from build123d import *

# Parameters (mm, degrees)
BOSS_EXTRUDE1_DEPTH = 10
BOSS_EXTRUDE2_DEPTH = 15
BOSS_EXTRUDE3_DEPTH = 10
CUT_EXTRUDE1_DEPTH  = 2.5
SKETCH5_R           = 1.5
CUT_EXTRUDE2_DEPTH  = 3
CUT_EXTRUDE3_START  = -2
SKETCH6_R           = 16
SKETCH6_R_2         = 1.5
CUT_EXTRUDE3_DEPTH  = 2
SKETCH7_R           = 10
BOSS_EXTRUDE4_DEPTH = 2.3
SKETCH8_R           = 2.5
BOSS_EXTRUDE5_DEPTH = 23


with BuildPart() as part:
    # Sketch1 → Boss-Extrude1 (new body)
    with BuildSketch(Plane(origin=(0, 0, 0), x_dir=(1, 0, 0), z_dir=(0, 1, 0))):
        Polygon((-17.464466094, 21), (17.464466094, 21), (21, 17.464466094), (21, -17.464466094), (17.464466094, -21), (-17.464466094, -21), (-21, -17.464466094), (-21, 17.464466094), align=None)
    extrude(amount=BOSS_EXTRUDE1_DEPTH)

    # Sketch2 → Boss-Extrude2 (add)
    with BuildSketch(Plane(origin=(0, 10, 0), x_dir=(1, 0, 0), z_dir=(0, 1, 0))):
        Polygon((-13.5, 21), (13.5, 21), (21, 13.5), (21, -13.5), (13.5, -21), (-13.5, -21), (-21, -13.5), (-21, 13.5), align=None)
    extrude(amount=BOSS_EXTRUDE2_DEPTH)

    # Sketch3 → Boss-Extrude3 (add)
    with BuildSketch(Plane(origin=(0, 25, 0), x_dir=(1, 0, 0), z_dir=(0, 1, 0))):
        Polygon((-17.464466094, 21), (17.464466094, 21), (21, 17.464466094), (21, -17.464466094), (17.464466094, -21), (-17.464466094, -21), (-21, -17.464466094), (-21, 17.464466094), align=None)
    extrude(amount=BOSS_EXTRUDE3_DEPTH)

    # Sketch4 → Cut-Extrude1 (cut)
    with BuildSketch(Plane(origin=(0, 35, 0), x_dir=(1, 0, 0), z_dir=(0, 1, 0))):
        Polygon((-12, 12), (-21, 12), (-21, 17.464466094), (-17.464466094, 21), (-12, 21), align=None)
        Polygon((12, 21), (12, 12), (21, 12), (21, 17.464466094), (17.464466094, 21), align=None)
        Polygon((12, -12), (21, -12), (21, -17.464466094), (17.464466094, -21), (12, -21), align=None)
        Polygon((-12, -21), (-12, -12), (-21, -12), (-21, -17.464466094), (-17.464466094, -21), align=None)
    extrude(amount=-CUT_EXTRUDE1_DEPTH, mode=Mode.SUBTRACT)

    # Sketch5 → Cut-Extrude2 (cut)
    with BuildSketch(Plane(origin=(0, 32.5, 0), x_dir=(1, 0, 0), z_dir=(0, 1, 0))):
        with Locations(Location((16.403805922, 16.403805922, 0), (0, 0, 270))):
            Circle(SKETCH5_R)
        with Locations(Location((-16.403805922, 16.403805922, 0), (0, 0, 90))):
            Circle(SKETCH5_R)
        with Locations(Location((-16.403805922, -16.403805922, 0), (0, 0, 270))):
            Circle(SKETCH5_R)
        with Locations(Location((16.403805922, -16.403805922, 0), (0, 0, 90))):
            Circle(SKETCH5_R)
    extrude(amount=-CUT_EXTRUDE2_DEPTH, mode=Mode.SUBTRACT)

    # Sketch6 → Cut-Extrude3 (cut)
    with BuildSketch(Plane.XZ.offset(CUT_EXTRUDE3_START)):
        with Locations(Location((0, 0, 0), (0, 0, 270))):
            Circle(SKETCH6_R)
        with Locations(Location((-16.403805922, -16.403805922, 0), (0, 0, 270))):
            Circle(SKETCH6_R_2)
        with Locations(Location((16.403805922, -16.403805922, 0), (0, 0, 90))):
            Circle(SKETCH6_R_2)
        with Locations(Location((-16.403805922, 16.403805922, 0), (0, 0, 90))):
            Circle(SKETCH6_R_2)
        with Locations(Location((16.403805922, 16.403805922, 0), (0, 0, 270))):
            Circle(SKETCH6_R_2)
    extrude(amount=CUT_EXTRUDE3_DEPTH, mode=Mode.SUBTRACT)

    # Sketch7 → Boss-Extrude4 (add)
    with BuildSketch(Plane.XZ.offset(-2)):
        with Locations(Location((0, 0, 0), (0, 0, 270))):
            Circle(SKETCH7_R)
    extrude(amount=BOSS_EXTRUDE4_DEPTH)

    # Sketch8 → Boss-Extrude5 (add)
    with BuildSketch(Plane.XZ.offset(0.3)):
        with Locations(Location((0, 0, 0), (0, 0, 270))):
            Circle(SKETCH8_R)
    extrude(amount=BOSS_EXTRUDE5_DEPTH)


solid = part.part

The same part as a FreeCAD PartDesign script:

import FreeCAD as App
import Part
import Sketcher
from FreeCAD import Vector

doc = App.newDocument("Part")
params = doc.addObject("Spreadsheet::Sheet", "Params")
for row, (alias, value) in enumerate([
    ("sketch1_length", "5 mm"),
    ("pad1_length", "10 mm"),
    ("sketch2_width", "27 mm"),
    ("pad2_length", "15 mm"),
    ("sketch3_length", "5 mm"),
    ("pad3_length", "10 mm"),
    ("sketch4_width", "9 mm"),
    ("sketch4_length", "5 mm"),
    ("pocket1_length", "2.5 mm"),
    ("sketch5_diameter", "3 mm"),
    ("pocket2_length", "3 mm"),
    ("sketch6_diameter", "32 mm"),
    ("sketch6_diameter2", "3 mm"),
    ("pocket3_length", "2 mm"),
    ("sketch7_diameter", "20 mm"),
    ("pad4_length", "2.3 mm"),
    ("sketch8_diameter", "5 mm"),
    ("pad5_length", "23 mm"),
], start=1):
    params.set(f"A{row}", alias)
    params.set(f"B{row}", "=" + value)
    params.setAlias(f"B{row}", alias)

body = doc.addObject("PartDesign::Body", "Body")

# Sketch on XZ plane
sketch1 = body.newObject("Sketcher::SketchObject", "Sketch")
sketch1.AttachmentSupport = (doc.getObject("XZ_Plane"), [""])
sketch1.MapMode = "FlatFace"
sketch1.addGeometry(Part.LineSegment(Vector(17, -21, 0), Vector(-17, -21, 0)), False)
sketch1.addGeometry(Part.LineSegment(Vector(-17, -21, 0), Vector(-21, -17, 0)), False)
sketch1.addGeometry(Part.LineSegment(Vector(-21, -17, 0), Vector(-21, 17, 0)), False)
sketch1.addGeometry(Part.LineSegment(Vector(-21, 17, 0), Vector(-17, 21, 0)), False)
sketch1.addGeometry(Part.LineSegment(Vector(-17, 21, 0), Vector(17, 21, 0)), False)
sketch1.addGeometry(Part.LineSegment(Vector(17, 21, 0), Vector(21, 17, 0)), False)
sketch1.addGeometry(Part.LineSegment(Vector(21, 17, 0), Vector(21, -17, 0)), False)
sketch1.addGeometry(Part.LineSegment(Vector(21, -17, 0), Vector(17, -21, 0)), False)
sketch1.addConstraint(Sketcher.Constraint("Coincident", 0, 2, 1, 1))
sketch1.addConstraint(Sketcher.Constraint("Coincident", 1, 2, 2, 1))
sketch1.addConstraint(Sketcher.Constraint("Coincident", 2, 2, 3, 1))
sketch1.addConstraint(Sketcher.Constraint("Coincident", 3, 2, 4, 1))
sketch1.addConstraint(Sketcher.Constraint("Coincident", 4, 2, 5, 1))
sketch1.addConstraint(Sketcher.Constraint("Coincident", 5, 2, 6, 1))
sketch1.addConstraint(Sketcher.Constraint("Coincident", 6, 2, 7, 1))
sketch1.addConstraint(Sketcher.Constraint("Coincident", 7, 2, 0, 1))
sketch1.addConstraint(Sketcher.Constraint("Horizontal", 0))
sketch1.addConstraint(Sketcher.Constraint("Vertical", 2))
sketch1.addConstraint(Sketcher.Constraint("Horizontal", 4))
sketch1.addConstraint(Sketcher.Constraint("Vertical", 6))
sketch1.addConstraint(Sketcher.Constraint("Symmetric", 0, 2, 4, 2, -1, 1))
sketch1.addConstraint(Sketcher.Constraint("Symmetric", 1, 2, 5, 2, -1, 1))
sketch1.addConstraint(Sketcher.Constraint("Perpendicular", 1, 3))
sketch1.addConstraint(Sketcher.Constraint("Perpendicular", 5, 7))
sketch1.addConstraint(Sketcher.Constraint("Horizontal", 2, 2, 5, 2))
sketch1.addConstraint(Sketcher.Constraint("Horizontal", 1, 2, 6, 2))
sketch1.addConstraint(Sketcher.Constraint("Vertical", 0, 2, 3, 2))
sketch1.addConstraint(Sketcher.Constraint("Equal", 4, 2))
sketch1.addConstraint(Sketcher.Constraint("Distance", 1, 5.0))
sketch1.addConstraint(Sketcher.Constraint("DistanceY", 0, 2, -1, 1, 21.0))
sketch1.setExpression("Constraints[20]", "Params.sketch1_length")
pad1 = body.newObject("PartDesign::Pad", "Pad")
pad1.Profile = sketch1
pad1.setExpression("Length", "Params.pad1_length")
pad1.Reversed = True

# Sketch on XZ plane
sketch2 = body.newObject("Sketcher::SketchObject", "Sketch001")
sketch2.AttachmentSupport = (doc.getObject("XZ_Plane"), [""])
sketch2.MapMode = "FlatFace"
sketch2.AttachmentOffset = App.Placement(Vector(0, 0, -10), App.Rotation())
sketch2.addGeometry(Part.LineSegment(Vector(14, -21, 0), Vector(-14, -21, 0)), False)
sketch2.addGeometry(Part.LineSegment(Vector(-14, -21, 0), Vector(-21, -14, 0)), False)
sketch2.addGeometry(Part.LineSegment(Vector(-21, -14, 0), Vector(-21, 14, 0)), False)
sketch2.addGeometry(Part.LineSegment(Vector(-21, 14, 0), Vector(-14, 21, 0)), False)
sketch2.addGeometry(Part.LineSegment(Vector(-14, 21, 0), Vector(14, 21, 0)), False)
sketch2.addGeometry(Part.LineSegment(Vector(14, 21, 0), Vector(21, 14, 0)), False)
sketch2.addGeometry(Part.LineSegment(Vector(21, 14, 0), Vector(21, -14, 0)), False)
sketch2.addGeometry(Part.LineSegment(Vector(21, -14, 0), Vector(14, -21, 0)), False)
sketch2.addConstraint(Sketcher.Constraint("Coincident", 0, 2, 1, 1))
sketch2.addConstraint(Sketcher.Constraint("Coincident", 1, 2, 2, 1))
sketch2.addConstraint(Sketcher.Constraint("Coincident", 2, 2, 3, 1))
sketch2.addConstraint(Sketcher.Constraint("Coincident", 3, 2, 4, 1))
sketch2.addConstraint(Sketcher.Constraint("Coincident", 4, 2, 5, 1))
sketch2.addConstraint(Sketcher.Constraint("Coincident", 5, 2, 6, 1))
sketch2.addConstraint(Sketcher.Constraint("Coincident", 6, 2, 7, 1))
sketch2.addConstraint(Sketcher.Constraint("Coincident", 7, 2, 0, 1))
sketch2.addConstraint(Sketcher.Constraint("Horizontal", 0))
sketch2.addConstraint(Sketcher.Constraint("Vertical", 2))
sketch2.addConstraint(Sketcher.Constraint("Horizontal", 4))
sketch2.addConstraint(Sketcher.Constraint("Vertical", 6))
sketch2.addConstraint(Sketcher.Constraint("Symmetric", 0, 2, 4, 2, -1, 1))
sketch2.addConstraint(Sketcher.Constraint("Symmetric", 1, 2, 5, 2, -1, 1))
sketch2.addConstraint(Sketcher.Constraint("Perpendicular", 1, 3))
sketch2.addConstraint(Sketcher.Constraint("Perpendicular", 5, 7))
sketch2.addConstraint(Sketcher.Constraint("Horizontal", 2, 2, 5, 2))
sketch2.addConstraint(Sketcher.Constraint("Horizontal", 1, 2, 6, 2))
sketch2.addConstraint(Sketcher.Constraint("Vertical", 0, 2, 3, 2))
sketch2.addConstraint(Sketcher.Constraint("Equal", 4, 2))
sketch2.addConstraint(Sketcher.Constraint("DistanceX", 0, 2, 0, 1, 27.0))
sketch2.addConstraint(Sketcher.Constraint("DistanceY", 0, 2, -1, 1, 21.0))
sketch2.setExpression("Constraints[20]", "Params.sketch2_width")
pad2 = body.newObject("PartDesign::Pad", "Pad001")
pad2.Profile = sketch2
pad2.setExpression("Length", "Params.pad2_length")
pad2.Reversed = True

# Sketch on XZ plane
sketch3 = body.newObject("Sketcher::SketchObject", "Sketch002")
sketch3.AttachmentSupport = (doc.getObject("XZ_Plane"), [""])
sketch3.MapMode = "FlatFace"
sketch3.AttachmentOffset = App.Placement(Vector(0, 0, -25), App.Rotation())
sketch3.addGeometry(Part.LineSegment(Vector(17, -21, 0), Vector(-17, -21, 0)), False)
sketch3.addGeometry(Part.LineSegment(Vector(-17, -21, 0), Vector(-21, -17, 0)), False)
sketch3.addGeometry(Part.LineSegment(Vector(-21, -17, 0), Vector(-21, 17, 0)), False)
sketch3.addGeometry(Part.LineSegment(Vector(-21, 17, 0), Vector(-17, 21, 0)), False)
sketch3.addGeometry(Part.LineSegment(Vector(-17, 21, 0), Vector(17, 21, 0)), False)
sketch3.addGeometry(Part.LineSegment(Vector(17, 21, 0), Vector(21, 17, 0)), False)
sketch3.addGeometry(Part.LineSegment(Vector(21, 17, 0), Vector(21, -17, 0)), False)
sketch3.addGeometry(Part.LineSegment(Vector(21, -17, 0), Vector(17, -21, 0)), False)
sketch3.addConstraint(Sketcher.Constraint("Coincident", 0, 2, 1, 1))
sketch3.addConstraint(Sketcher.Constraint("Coincident", 1, 2, 2, 1))
sketch3.addConstraint(Sketcher.Constraint("Coincident", 2, 2, 3, 1))
sketch3.addConstraint(Sketcher.Constraint("Coincident", 3, 2, 4, 1))
sketch3.addConstraint(Sketcher.Constraint("Coincident", 4, 2, 5, 1))
sketch3.addConstraint(Sketcher.Constraint("Coincident", 5, 2, 6, 1))
sketch3.addConstraint(Sketcher.Constraint("Coincident", 6, 2, 7, 1))
sketch3.addConstraint(Sketcher.Constraint("Coincident", 7, 2, 0, 1))
sketch3.addConstraint(Sketcher.Constraint("Horizontal", 0))
sketch3.addConstraint(Sketcher.Constraint("Vertical", 2))
sketch3.addConstraint(Sketcher.Constraint("Horizontal", 4))
sketch3.addConstraint(Sketcher.Constraint("Vertical", 6))
sketch3.addConstraint(Sketcher.Constraint("Symmetric", 0, 2, 4, 2, -1, 1))
sketch3.addConstraint(Sketcher.Constraint("Symmetric", 1, 2, 5, 2, -1, 1))
sketch3.addConstraint(Sketcher.Constraint("Perpendicular", 1, 3))
sketch3.addConstraint(Sketcher.Constraint("Perpendicular", 5, 7))
sketch3.addConstraint(Sketcher.Constraint("Horizontal", 2, 2, 5, 2))
sketch3.addConstraint(Sketcher.Constraint("Horizontal", 1, 2, 6, 2))
sketch3.addConstraint(Sketcher.Constraint("Vertical", 0, 2, 3, 2))
sketch3.addConstraint(Sketcher.Constraint("Equal", 4, 2))
sketch3.addConstraint(Sketcher.Constraint("Distance", 1, 5.0))
sketch3.addConstraint(Sketcher.Constraint("DistanceY", 0, 2, -1, 1, 21.0))
sketch3.setExpression("Constraints[20]", "Params.sketch3_length")
pad3 = body.newObject("PartDesign::Pad", "Pad002")
pad3.Profile = sketch3
pad3.setExpression("Length", "Params.pad3_length")
pad3.Reversed = True

# Sketch on XZ plane
sketch4 = body.newObject("Sketcher::SketchObject", "Sketch003")
sketch4.AttachmentSupport = (doc.getObject("XZ_Plane"), [""])
sketch4.MapMode = "FlatFace"
sketch4.AttachmentOffset = App.Placement(Vector(0, 0, -35), App.Rotation())
sketch4.addGeometry(Part.LineSegment(Vector(-21, -12, 0), Vector(-12, -12, 0)), False)
sketch4.addGeometry(Part.LineSegment(Vector(-12, -12, 0), Vector(-12, -21, 0)), False)
sketch4.addGeometry(Part.LineSegment(Vector(-12, -21, 0), Vector(-17, -21, 0)), False)
sketch4.addGeometry(Part.LineSegment(Vector(-17, -21, 0), Vector(-21, -17, 0)), False)
sketch4.addGeometry(Part.LineSegment(Vector(-21, -17, 0), Vector(-21, -12, 0)), False)
sketch4.addGeometry(Part.LineSegment(Vector(12, -21, 0), Vector(12, -12, 0)), False)
sketch4.addGeometry(Part.LineSegment(Vector(12, -12, 0), Vector(21, -12, 0)), False)
sketch4.addGeometry(Part.LineSegment(Vector(21, -12, 0), Vector(21, -17, 0)), False)
sketch4.addGeometry(Part.LineSegment(Vector(21, -17, 0), Vector(17, -21, 0)), False)
sketch4.addGeometry(Part.LineSegment(Vector(17, -21, 0), Vector(12, -21, 0)), False)
sketch4.addGeometry(Part.LineSegment(Vector(21, 12, 0), Vector(12, 12, 0)), False)
sketch4.addGeometry(Part.LineSegment(Vector(12, 12, 0), Vector(12, 21, 0)), False)
sketch4.addGeometry(Part.LineSegment(Vector(12, 21, 0), Vector(17, 21, 0)), False)
sketch4.addGeometry(Part.LineSegment(Vector(17, 21, 0), Vector(21, 17, 0)), False)
sketch4.addGeometry(Part.LineSegment(Vector(21, 17, 0), Vector(21, 12, 0)), False)
sketch4.addGeometry(Part.LineSegment(Vector(-12, 21, 0), Vector(-12, 12, 0)), False)
sketch4.addGeometry(Part.LineSegment(Vector(-12, 12, 0), Vector(-21, 12, 0)), False)
sketch4.addGeometry(Part.LineSegment(Vector(-21, 12, 0), Vector(-21, 17, 0)), False)
sketch4.addGeometry(Part.LineSegment(Vector(-21, 17, 0), Vector(-17, 21, 0)), False)
sketch4.addGeometry(Part.LineSegment(Vector(-17, 21, 0), Vector(-12, 21, 0)), False)
sketch4.addConstraint(Sketcher.Constraint("Coincident", 0, 2, 1, 1))
sketch4.addConstraint(Sketcher.Constraint("Coincident", 1, 2, 2, 1))
sketch4.addConstraint(Sketcher.Constraint("Coincident", 2, 2, 3, 1))
sketch4.addConstraint(Sketcher.Constraint("Coincident", 3, 2, 4, 1))
sketch4.addConstraint(Sketcher.Constraint("Coincident", 4, 2, 0, 1))
sketch4.addConstraint(Sketcher.Constraint("Coincident", 5, 2, 6, 1))
sketch4.addConstraint(Sketcher.Constraint("Coincident", 6, 2, 7, 1))
sketch4.addConstraint(Sketcher.Constraint("Coincident", 7, 2, 8, 1))
sketch4.addConstraint(Sketcher.Constraint("Coincident", 8, 2, 9, 1))
sketch4.addConstraint(Sketcher.Constraint("Coincident", 9, 2, 5, 1))
sketch4.addConstraint(Sketcher.Constraint("Coincident", 10, 2, 11, 1))
sketch4.addConstraint(Sketcher.Constraint("Coincident", 11, 2, 12, 1))
sketch4.addConstraint(Sketcher.Constraint("Coincident", 12, 2, 13, 1))
sketch4.addConstraint(Sketcher.Constraint("Coincident", 13, 2, 14, 1))
sketch4.addConstraint(Sketcher.Constraint("Coincident", 14, 2, 10, 1))
sketch4.addConstraint(Sketcher.Constraint("Coincident", 15, 2, 16, 1))
sketch4.addConstraint(Sketcher.Constraint("Coincident", 16, 2, 17, 1))
sketch4.addConstraint(Sketcher.Constraint("Coincident", 17, 2, 18, 1))
sketch4.addConstraint(Sketcher.Constraint("Coincident", 18, 2, 19, 1))
sketch4.addConstraint(Sketcher.Constraint("Coincident", 19, 2, 15, 1))
sketch4.addConstraint(Sketcher.Constraint("Horizontal", 0))
sketch4.addConstraint(Sketcher.Constraint("Vertical", 1))
sketch4.addConstraint(Sketcher.Constraint("Horizontal", 2))
sketch4.addConstraint(Sketcher.Constraint("Vertical", 4))
sketch4.addConstraint(Sketcher.Constraint("Vertical", 5))
sketch4.addConstraint(Sketcher.Constraint("Horizontal", 6))
sketch4.addConstraint(Sketcher.Constraint("Vertical", 7))
sketch4.addConstraint(Sketcher.Constraint("Horizontal", 9))
sketch4.addConstraint(Sketcher.Constraint("Horizontal", 10))
sketch4.addConstraint(Sketcher.Constraint("Vertical", 11))
sketch4.addConstraint(Sketcher.Constraint("Horizontal", 12))
sketch4.addConstraint(Sketcher.Constraint("Vertical", 14))
sketch4.addConstraint(Sketcher.Constraint("Vertical", 15))
sketch4.addConstraint(Sketcher.Constraint("Horizontal", 16))
sketch4.addConstraint(Sketcher.Constraint("Vertical", 17))
sketch4.addConstraint(Sketcher.Constraint("Horizontal", 19))
sketch4.addConstraint(Sketcher.Constraint("Symmetric", 0, 2, 10, 2, -1, 1))
sketch4.addConstraint(Sketcher.Constraint("Symmetric", 2, 2, 12, 2, -1, 1))
sketch4.addConstraint(Sketcher.Constraint("Symmetric", 3, 2, 13, 2, -1, 1))
sketch4.addConstraint(Sketcher.Constraint("Symmetric", 5, 2, 15, 2, -1, 1))
sketch4.addConstraint(Sketcher.Constraint("Symmetric", 7, 2, 17, 2, -1, 1))
sketch4.addConstraint(Sketcher.Constraint("Symmetric", 8, 2, 18, 2, -1, 1))
sketch4.addConstraint(Sketcher.Constraint("Symmetric", 0, 2, 5, 2, -2))
sketch4.addConstraint(Sketcher.Constraint("Symmetric", 3, 2, 7, 2, -2))
sketch4.addConstraint(Sketcher.Constraint("Symmetric", 2, 2, 8, 2, -2))
sketch4.addConstraint(Sketcher.Constraint("Perpendicular", 3, 8))
sketch4.addConstraint(Sketcher.Constraint("Equal", 16, 1))
sketch4.addConstraint(Sketcher.Constraint("DistanceX", 0, 1, 0, 2, 9.0))
sketch4.addConstraint(Sketcher.Constraint("Distance", 3, 5.0))
sketch4.addConstraint(Sketcher.Constraint("DistanceX", 0, 2, -1, 1, 12.0))
sketch4.addConstraint(Sketcher.Constraint("DistanceY", 0, 2, -1, 1, 12.0))
sketch4.setExpression("Constraints[47]", "Params.sketch4_width")
sketch4.setExpression("Constraints[48]", "Params.sketch4_length")
pocket1 = body.newObject("PartDesign::Pocket", "Pocket")
pocket1.Profile = sketch4
pocket1.setExpression("Length", "Params.pocket1_length")
pocket1.Reversed = True

# Sketch on XZ plane
sketch5 = body.newObject("Sketcher::SketchObject", "Sketch004")
sketch5.AttachmentSupport = (doc.getObject("XZ_Plane"), [""])
sketch5.MapMode = "FlatFace"
sketch5.AttachmentOffset = App.Placement(Vector(0, 0, -32.5), App.Rotation())
sketch5.addGeometry(Part.Circle(Vector(16.4, -16.4, 0), Vector(0, 0, 1), 1.5), False)
sketch5.addGeometry(Part.Circle(Vector(-16.4, -16.4, 0), Vector(0, 0, 1), 1.5), False)
sketch5.addGeometry(Part.Circle(Vector(-16.4, 16.4, 0), Vector(0, 0, 1), 1.5), False)
sketch5.addGeometry(Part.Circle(Vector(16.4, 16.4, 0), Vector(0, 0, 1), 1.5), False)
sketch5.addConstraint(Sketcher.Constraint("Equal", 0, 1))
sketch5.addConstraint(Sketcher.Constraint("Equal", 1, 2))
sketch5.addConstraint(Sketcher.Constraint("Equal", 2, 3))
sketch5.addConstraint(Sketcher.Constraint("Symmetric", 0, 3, 2, 3, -1, 1))
sketch5.addConstraint(Sketcher.Constraint("Symmetric", 1, 3, 3, 3, -1, 1))
sketch5.addConstraint(Sketcher.Constraint("Symmetric", 0, 3, 1, 3, -2))
sketch5.addConstraint(Sketcher.Constraint("Diameter", 0, 3.0))
sketch5.addConstraint(Sketcher.Constraint("DistanceX", 1, 3, 0, 3, 32.807612))
sketch5.addConstraint(Sketcher.Constraint("DistanceY", 1, 3, 2, 3, 32.807612))
sketch5.setExpression("Constraints[6]", "Params.sketch5_diameter")
pocket2 = body.newObject("PartDesign::Pocket", "Pocket001")
pocket2.Profile = sketch5
pocket2.setExpression("Length", "Params.pocket2_length")
pocket2.Reversed = True

# Sketch on XZ plane
sketch6 = body.newObject("Sketcher::SketchObject", "Sketch005")
sketch6.AttachmentSupport = (doc.getObject("XZ_Plane"), [""])
sketch6.MapMode = "FlatFace"
sketch6.AttachmentOffset = App.Placement(Vector(0, 0, -2), App.Rotation())
sketch6.addGeometry(Part.Circle(Vector(0, 0, 0), Vector(0, 0, 1), 16), False)
sketch6.addGeometry(Part.Circle(Vector(-16.4, -16.4, 0), Vector(0, 0, 1), 1.5), False)
sketch6.addGeometry(Part.Circle(Vector(16.4, -16.4, 0), Vector(0, 0, 1), 1.5), False)
sketch6.addGeometry(Part.Circle(Vector(-16.4, 16.4, 0), Vector(0, 0, 1), 1.5), False)
sketch6.addGeometry(Part.Circle(Vector(16.4, 16.4, 0), Vector(0, 0, 1), 1.5), False)
sketch6.addConstraint(Sketcher.Constraint("Coincident", 0, 3, -1, 1))
sketch6.addConstraint(Sketcher.Constraint("Equal", 1, 2))
sketch6.addConstraint(Sketcher.Constraint("Equal", 2, 3))
sketch6.addConstraint(Sketcher.Constraint("Equal", 3, 4))
sketch6.addConstraint(Sketcher.Constraint("Symmetric", 2, 3, 3, 3, -1, 1))
sketch6.addConstraint(Sketcher.Constraint("Symmetric", 1, 3, 4, 3, -1, 1))
sketch6.addConstraint(Sketcher.Constraint("Symmetric", 1, 3, 2, 3, -2))
sketch6.addConstraint(Sketcher.Constraint("Diameter", 0, 32.0))
sketch6.addConstraint(Sketcher.Constraint("Diameter", 1, 3.0))
sketch6.addConstraint(Sketcher.Constraint("DistanceX", 1, 3, 2, 3, 32.807612))
sketch6.addConstraint(Sketcher.Constraint("DistanceY", 1, 3, 3, 3, 32.807612))
sketch6.setExpression("Constraints[7]", "Params.sketch6_diameter")
sketch6.setExpression("Constraints[8]", "Params.sketch6_diameter2")
pocket3 = body.newObject("PartDesign::Pocket", "Pocket002")
pocket3.Profile = sketch6
pocket3.setExpression("Length", "Params.pocket3_length")
pocket3.Reversed = True

# Sketch on XZ plane
sketch7 = body.newObject("Sketcher::SketchObject", "Sketch006")
sketch7.AttachmentSupport = (doc.getObject("XZ_Plane"), [""])
sketch7.MapMode = "FlatFace"
sketch7.AttachmentOffset = App.Placement(Vector(0, 0, -2), App.Rotation())
sketch7.addGeometry(Part.Circle(Vector(0, 0, 0), Vector(0, 0, 1), 10), False)
sketch7.addConstraint(Sketcher.Constraint("Coincident", 0, 3, -1, 1))
sketch7.addConstraint(Sketcher.Constraint("Diameter", 0, 20.0))
sketch7.setExpression("Constraints[1]", "Params.sketch7_diameter")
pad4 = body.newObject("PartDesign::Pad", "Pad003")
pad4.Profile = sketch7
pad4.setExpression("Length", "Params.pad4_length")

# Sketch on XZ plane
sketch8 = body.newObject("Sketcher::SketchObject", "Sketch007")
sketch8.AttachmentSupport = (doc.getObject("XZ_Plane"), [""])
sketch8.MapMode = "FlatFace"
sketch8.AttachmentOffset = App.Placement(Vector(0, 0, 0.3), App.Rotation())
sketch8.addGeometry(Part.Circle(Vector(0, 0, 0), Vector(0, 0, 1), 2.5), False)
sketch8.addConstraint(Sketcher.Constraint("Coincident", 0, 3, -1, 1))
sketch8.addConstraint(Sketcher.Constraint("Diameter", 0, 5.0))
sketch8.setExpression("Constraints[1]", "Params.sketch8_diameter")
pad5 = body.newObject("PartDesign::Pad", "Pad004")
pad5.Profile = sketch8
pad5.setExpression("Length", "Params.pad5_length")

doc.recompute()
